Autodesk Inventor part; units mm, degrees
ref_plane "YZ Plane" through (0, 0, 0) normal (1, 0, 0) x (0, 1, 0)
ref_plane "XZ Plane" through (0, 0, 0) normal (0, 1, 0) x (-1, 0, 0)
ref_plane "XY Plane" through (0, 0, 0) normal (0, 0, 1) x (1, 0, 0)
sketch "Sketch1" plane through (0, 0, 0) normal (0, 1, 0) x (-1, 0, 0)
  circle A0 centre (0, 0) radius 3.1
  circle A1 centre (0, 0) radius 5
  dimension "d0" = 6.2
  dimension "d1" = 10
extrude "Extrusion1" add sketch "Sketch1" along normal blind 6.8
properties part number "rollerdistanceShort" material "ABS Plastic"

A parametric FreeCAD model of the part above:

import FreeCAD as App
import Part
import Sketcher
from FreeCAD import Vector
Q = App.Units.Quantity

doc = App.newDocument("Part")
body = doc.addObject("PartDesign::Body", "Body")

# Sketch on XZ plane
sketch1 = body.newObject("Sketcher::SketchObject", "Sketch")
sketch1.AttachmentSupport = (doc.getObject("XZ_Plane"), [""])
sketch1.MapMode = "FlatFace"
sketch1.addGeometry([
    Part.Circle(Vector(0, 0, 0), Vector(0, 0, 1), 5),
    Part.Circle(Vector(0, 0, 0), Vector(0, 0, 1), 3.1),
], False)
sketch1.addConstraint([
    Sketcher.Constraint("Coincident", 0, 3, -1, 1),
    Sketcher.Constraint("Coincident", 1, 3, -1, 1),
    Sketcher.Constraint("Diameter", 0, Q("10 mm")),
    Sketcher.Constraint("Diameter", 1, Q("6.2 mm")),
])
pad1 = body.newObject("PartDesign::Pad", "Pad")
pad1.Profile = sketch1
pad1.Length = 6.8
pad1.Reversed = True

doc.recompute()
